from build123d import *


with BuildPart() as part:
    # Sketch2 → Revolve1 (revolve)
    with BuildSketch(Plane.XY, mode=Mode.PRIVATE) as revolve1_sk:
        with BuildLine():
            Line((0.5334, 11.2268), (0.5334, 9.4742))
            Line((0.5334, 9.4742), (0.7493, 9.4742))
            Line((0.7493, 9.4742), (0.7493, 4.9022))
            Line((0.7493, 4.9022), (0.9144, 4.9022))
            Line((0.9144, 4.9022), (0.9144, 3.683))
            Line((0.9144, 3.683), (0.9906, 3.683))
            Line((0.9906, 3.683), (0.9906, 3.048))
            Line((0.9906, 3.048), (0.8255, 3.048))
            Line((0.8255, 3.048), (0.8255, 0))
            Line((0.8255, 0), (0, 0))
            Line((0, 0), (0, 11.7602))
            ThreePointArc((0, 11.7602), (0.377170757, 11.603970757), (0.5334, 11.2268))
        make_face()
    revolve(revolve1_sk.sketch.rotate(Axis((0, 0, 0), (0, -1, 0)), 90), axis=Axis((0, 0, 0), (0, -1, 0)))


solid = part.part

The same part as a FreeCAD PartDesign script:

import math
import FreeCAD as App
import Part
import Sketcher
Q = App.Units.Quantity

doc = App.newDocument("Part")
body = doc.addObject("PartDesign::Body", "Body")

# Sketch on XY plane
sketch1 = body.newObject("Sketcher::SketchObject", "Sketch")
sketch1.AttachmentSupport = (doc.getObject("XY_Plane"), [""])
sketch1.MapMode = "FlatFace"
sketch1.addGeometry([
    Part.LineSegment(App.Vector(0.53, 9.47, 0), App.Vector(0.53, 11.23, 0)),  # 0
    Part.ArcOfCircle(Part.Circle(App.Vector(0, 11.23, 0), App.Vector(0, 0, 1), 0.53), math.radians(0), math.radians(90)),  # 1
    Part.LineSegment(App.Vector(0, 11.76, 0), App.Vector(0, 0, 0)),  # 2
    Part.LineSegment(App.Vector(0, 0, 0), App.Vector(0.83, 0, 0)),  # 3
    Part.LineSegment(App.Vector(0.83, 0, 0), App.Vector(0.83, 3.05, 0)),  # 4
    Part.LineSegment(App.Vector(0.83, 3.05, 0), App.Vector(0.99, 3.05, 0)),  # 5
    Part.LineSegment(App.Vector(0.99, 3.05, 0), App.Vector(0.99, 3.68, 0)),  # 6
    Part.LineSegment(App.Vector(0.99, 3.68, 0), App.Vector(0.91, 3.68, 0)),  # 7
    Part.LineSegment(App.Vector(0.91, 3.68, 0), App.Vector(0.91, 4.9, 0)),  # 8
    Part.LineSegment(App.Vector(0.91, 4.9, 0), App.Vector(0.75, 4.9, 0)),  # 9
    Part.LineSegment(App.Vector(0.75, 4.9, 0), App.Vector(0.75, 9.47, 0)),  # 10
    Part.LineSegment(App.Vector(0.75, 9.47, 0), App.Vector(0.53, 9.47, 0)),  # 11
], False)
sketch1.addConstraint([
    Sketcher.Constraint("Tangent", 0, 2, 1, 1),
    Sketcher.Constraint("Coincident", 1, 2, 2, 1),
    Sketcher.Constraint("Coincident", 2, 2, 3, 1),
    Sketcher.Constraint("Coincident", 3, 2, 4, 1),
    Sketcher.Constraint("Coincident", 4, 2, 5, 1),
    Sketcher.Constraint("Coincident", 5, 2, 6, 1),
    Sketcher.Constraint("Coincident", 6, 2, 7, 1),
    Sketcher.Constraint("Coincident", 7, 2, 8, 1),
    Sketcher.Constraint("Coincident", 8, 2, 9, 1),
    Sketcher.Constraint("Coincident", 9, 2, 10, 1),
    Sketcher.Constraint("Coincident", 10, 2, 11, 1),
    Sketcher.Constraint("Coincident", 11, 2, 0, 1),
    Sketcher.Constraint("Vertical", 0),
    Sketcher.Constraint("Vertical", 2),
    Sketcher.Constraint("Horizontal", 3),
    Sketcher.Constraint("Vertical", 4),
    Sketcher.Constraint("Horizontal", 5),
    Sketcher.Constraint("Vertical", 6),
    Sketcher.Constraint("Horizontal", 7),
    Sketcher.Constraint("Vertical", 8),
    Sketcher.Constraint("Horizontal", 9),
    Sketcher.Constraint("Vertical", 10),
    Sketcher.Constraint("Horizontal", 11),
    Sketcher.Constraint("Coincident", 2, 2, -1, 1),
    Sketcher.Constraint("PointOnObject", 1, 3, -2),
    Sketcher.Constraint("Equal", 5, 9),
    Sketcher.Constraint("Radius", 1, Q("0.021 in")),
    Sketcher.Constraint("DistanceY", 4, 1, 4, 2, Q("0.12 in")),
    Sketcher.Constraint("DistanceY", 10, 1, 10, 2, Q("0.18 in")),
    Sketcher.Constraint("DistanceX", 7, 2, 7, 1, Q("0.003 in")),
    Sketcher.Constraint("DistanceY", 0, 1, 0, 2, Q("0.069 in")),
    Sketcher.Constraint("DistanceY", 2, 2, 2, 1, Q("0.463 in")),
    Sketcher.Constraint("DistanceY", 6, 1, 6, 2, Q("0.025 in")),
    Sketcher.Constraint("DistanceX", 3, 1, 3, 2, Q("0.0325 in")),
    Sketcher.Constraint("DistanceX", 5, 1, 5, 2, Q("0.0065 in")),
])
revolution = body.newObject("PartDesign::Revolution", "Revolution")
revolution.Profile = sketch1
revolution.ReferenceAxis = (sketch1, ["V_Axis"])
revolution.Angle = 360

doc.recompute()
